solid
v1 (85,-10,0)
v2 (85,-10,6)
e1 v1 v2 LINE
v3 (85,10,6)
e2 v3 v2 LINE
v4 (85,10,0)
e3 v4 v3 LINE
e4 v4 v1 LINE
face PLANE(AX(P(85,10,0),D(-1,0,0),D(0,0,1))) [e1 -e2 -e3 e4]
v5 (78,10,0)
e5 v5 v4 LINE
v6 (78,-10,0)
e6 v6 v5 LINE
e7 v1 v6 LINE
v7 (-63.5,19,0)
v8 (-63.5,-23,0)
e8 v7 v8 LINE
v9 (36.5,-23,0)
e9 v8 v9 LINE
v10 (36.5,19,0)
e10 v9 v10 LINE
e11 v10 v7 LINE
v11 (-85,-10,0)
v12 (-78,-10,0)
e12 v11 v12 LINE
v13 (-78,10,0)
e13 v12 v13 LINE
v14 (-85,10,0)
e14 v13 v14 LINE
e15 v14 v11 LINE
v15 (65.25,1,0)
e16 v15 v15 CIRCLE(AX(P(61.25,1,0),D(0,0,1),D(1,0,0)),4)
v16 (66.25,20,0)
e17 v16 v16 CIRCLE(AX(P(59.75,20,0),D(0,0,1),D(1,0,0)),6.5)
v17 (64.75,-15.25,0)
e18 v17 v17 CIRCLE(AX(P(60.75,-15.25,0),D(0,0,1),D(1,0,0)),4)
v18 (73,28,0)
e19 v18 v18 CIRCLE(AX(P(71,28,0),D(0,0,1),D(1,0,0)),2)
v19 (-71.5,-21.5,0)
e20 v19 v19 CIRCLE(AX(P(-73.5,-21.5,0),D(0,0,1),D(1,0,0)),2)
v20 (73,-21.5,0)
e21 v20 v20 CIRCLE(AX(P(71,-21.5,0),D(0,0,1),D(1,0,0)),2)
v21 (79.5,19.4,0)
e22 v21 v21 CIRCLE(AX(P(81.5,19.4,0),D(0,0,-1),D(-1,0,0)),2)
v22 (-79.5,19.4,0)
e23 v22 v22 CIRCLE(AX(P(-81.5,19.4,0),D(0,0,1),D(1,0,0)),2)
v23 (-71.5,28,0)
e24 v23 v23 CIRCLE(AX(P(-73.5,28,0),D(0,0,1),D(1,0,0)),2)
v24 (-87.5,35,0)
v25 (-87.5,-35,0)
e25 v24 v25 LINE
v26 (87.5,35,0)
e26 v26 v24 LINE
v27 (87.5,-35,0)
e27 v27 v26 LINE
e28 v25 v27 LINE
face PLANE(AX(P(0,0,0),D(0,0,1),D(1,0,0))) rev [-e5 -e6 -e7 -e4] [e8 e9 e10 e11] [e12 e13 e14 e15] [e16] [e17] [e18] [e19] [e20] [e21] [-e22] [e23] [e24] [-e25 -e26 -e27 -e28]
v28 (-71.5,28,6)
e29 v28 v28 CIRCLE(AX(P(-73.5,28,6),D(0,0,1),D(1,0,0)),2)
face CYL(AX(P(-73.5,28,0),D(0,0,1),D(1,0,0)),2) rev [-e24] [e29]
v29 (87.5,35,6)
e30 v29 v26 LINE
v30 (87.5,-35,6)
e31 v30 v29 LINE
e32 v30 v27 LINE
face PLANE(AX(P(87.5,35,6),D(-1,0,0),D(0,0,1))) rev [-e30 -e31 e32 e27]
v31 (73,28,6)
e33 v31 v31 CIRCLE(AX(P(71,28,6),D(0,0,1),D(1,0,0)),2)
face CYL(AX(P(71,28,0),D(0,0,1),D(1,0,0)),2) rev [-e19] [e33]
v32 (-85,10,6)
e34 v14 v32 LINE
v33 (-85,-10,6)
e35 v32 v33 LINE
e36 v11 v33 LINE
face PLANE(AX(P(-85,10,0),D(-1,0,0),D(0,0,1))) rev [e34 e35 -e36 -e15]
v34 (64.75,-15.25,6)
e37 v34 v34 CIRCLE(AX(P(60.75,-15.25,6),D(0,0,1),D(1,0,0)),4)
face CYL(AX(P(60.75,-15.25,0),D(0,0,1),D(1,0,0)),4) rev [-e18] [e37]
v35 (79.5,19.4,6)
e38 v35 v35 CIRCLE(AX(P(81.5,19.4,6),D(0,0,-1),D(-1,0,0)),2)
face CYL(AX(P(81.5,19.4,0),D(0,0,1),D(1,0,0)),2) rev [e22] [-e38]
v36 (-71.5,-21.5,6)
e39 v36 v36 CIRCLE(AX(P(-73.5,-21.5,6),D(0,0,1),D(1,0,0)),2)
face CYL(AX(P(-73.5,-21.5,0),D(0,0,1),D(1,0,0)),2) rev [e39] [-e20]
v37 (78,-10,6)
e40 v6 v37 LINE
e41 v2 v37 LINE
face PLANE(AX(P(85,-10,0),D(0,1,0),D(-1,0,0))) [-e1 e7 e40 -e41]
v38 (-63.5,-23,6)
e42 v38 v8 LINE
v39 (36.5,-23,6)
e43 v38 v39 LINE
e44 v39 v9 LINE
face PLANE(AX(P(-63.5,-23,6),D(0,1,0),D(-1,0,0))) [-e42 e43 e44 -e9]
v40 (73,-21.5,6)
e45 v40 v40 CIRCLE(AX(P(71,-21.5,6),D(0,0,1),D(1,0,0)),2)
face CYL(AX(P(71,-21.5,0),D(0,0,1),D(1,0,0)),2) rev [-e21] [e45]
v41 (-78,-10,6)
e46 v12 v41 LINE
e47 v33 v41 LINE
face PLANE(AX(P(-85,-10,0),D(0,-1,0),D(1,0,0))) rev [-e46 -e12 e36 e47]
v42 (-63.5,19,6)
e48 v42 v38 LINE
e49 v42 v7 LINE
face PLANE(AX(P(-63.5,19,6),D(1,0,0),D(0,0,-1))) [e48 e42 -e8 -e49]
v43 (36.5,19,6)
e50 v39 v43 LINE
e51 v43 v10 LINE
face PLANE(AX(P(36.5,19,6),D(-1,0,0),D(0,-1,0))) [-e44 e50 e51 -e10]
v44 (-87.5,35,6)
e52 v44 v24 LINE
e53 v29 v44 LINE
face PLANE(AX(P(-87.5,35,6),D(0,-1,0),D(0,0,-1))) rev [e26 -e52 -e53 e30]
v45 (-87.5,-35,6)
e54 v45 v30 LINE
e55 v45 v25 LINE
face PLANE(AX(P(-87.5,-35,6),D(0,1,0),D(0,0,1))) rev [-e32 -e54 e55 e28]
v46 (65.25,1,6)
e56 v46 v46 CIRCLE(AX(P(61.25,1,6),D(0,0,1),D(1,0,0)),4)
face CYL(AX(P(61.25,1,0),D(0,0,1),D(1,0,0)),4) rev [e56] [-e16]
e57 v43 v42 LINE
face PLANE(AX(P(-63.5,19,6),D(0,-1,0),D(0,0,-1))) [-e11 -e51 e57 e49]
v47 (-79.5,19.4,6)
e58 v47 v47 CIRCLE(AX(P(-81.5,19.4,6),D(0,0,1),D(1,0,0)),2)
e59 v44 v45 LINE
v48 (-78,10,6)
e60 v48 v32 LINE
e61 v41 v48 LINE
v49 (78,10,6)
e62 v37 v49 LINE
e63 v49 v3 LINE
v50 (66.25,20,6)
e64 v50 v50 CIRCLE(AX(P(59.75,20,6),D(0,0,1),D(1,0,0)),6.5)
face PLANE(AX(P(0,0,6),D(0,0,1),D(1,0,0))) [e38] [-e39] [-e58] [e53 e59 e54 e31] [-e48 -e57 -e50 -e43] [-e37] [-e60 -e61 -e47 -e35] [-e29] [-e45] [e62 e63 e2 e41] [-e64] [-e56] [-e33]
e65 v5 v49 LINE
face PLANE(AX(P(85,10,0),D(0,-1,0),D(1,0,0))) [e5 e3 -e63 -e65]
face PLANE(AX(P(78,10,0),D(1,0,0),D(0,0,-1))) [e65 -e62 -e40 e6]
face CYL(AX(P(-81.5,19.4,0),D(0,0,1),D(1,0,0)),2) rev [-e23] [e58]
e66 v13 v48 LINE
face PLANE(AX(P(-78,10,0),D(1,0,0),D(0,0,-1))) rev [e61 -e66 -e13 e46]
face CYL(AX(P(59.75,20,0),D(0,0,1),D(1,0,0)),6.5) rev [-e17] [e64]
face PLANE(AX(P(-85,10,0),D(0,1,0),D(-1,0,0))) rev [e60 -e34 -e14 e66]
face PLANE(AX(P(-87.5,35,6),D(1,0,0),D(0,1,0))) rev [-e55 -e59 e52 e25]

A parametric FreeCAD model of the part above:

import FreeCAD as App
import Part
import Sketcher
from FreeCAD import Vector

doc = App.newDocument("Part")
body = doc.addObject("PartDesign::Body", "Body")

# Sketch on XY plane
sketch1 = body.newObject("Sketcher::SketchObject", "Sketch")
sketch1.AttachmentSupport = (doc.getObject("XY_Plane"), [""])
sketch1.MapMode = "FlatFace"
sketch1.addGeometry(Part.LineSegment(Vector(-88, 35, 0), Vector(-88, -35, 0)), False)
sketch1.addGeometry(Part.LineSegment(Vector(-88, -35, 0), Vector(88, -35, 0)), False)
sketch1.addGeometry(Part.LineSegment(Vector(88, -35, 0), Vector(88, 35, 0)), False)
sketch1.addGeometry(Part.LineSegment(Vector(88, 35, 0), Vector(-88, 35, 0)), False)
sketch1.addGeometry(Part.LineSegment(Vector(36, -23, 0), Vector(-64, -23, 0)), False)
sketch1.addGeometry(Part.LineSegment(Vector(-64, -23, 0), Vector(-64, 19, 0)), False)
sketch1.addGeometry(Part.LineSegment(Vector(-64, 19, 0), Vector(36, 19, 0)), False)
sketch1.addGeometry(Part.LineSegment(Vector(36, 19, 0), Vector(36, -23, 0)), False)
sketch1.addConstraint(Sketcher.Constraint("Coincident", 0, 2, 1, 1))
sketch1.addConstraint(Sketcher.Constraint("Coincident", 1, 2, 2, 1))
sketch1.addConstraint(Sketcher.Constraint("Coincident", 2, 2, 3, 1))
sketch1.addConstraint(Sketcher.Constraint("Coincident", 3, 2, 0, 1))
sketch1.addConstraint(Sketcher.Constraint("Coincident", 4, 2, 5, 1))
sketch1.addConstraint(Sketcher.Constraint("Coincident", 5, 2, 6, 1))
sketch1.addConstraint(Sketcher.Constraint("Coincident", 6, 2, 7, 1))
sketch1.addConstraint(Sketcher.Constraint("Coincident", 7, 2, 4, 1))
sketch1.addConstraint(Sketcher.Constraint("Vertical", 0))
sketch1.addConstraint(Sketcher.Constraint("Horizontal", 1))
sketch1.addConstraint(Sketcher.Constraint("Vertical", 2))
sketch1.addConstraint(Sketcher.Constraint("Horizontal", 3))
sketch1.addConstraint(Sketcher.Constraint("Horizontal", 4))
sketch1.addConstraint(Sketcher.Constraint("Vertical", 5))
sketch1.addConstraint(Sketcher.Constraint("Horizontal", 6))
sketch1.addConstraint(Sketcher.Constraint("Vertical", 7))
sketch1.addConstraint(Sketcher.Constraint("Symmetric", 0, 2, 2, 2, -1, 1))
sketch1.addConstraint(Sketcher.Constraint("DistanceX", 1, 1, 1, 2, 175.0))
sketch1.addConstraint(Sketcher.Constraint("DistanceX", 4, 2, 4, 1, 100.0))
sketch1.addConstraint(Sketcher.Constraint("DistanceY", 0, 2, 0, 1, 70.0))
sketch1.addConstraint(Sketcher.Constraint("DistanceY", 5, 1, 5, 2, 42.0))
sketch1.addConstraint(Sketcher.Constraint("DistanceY", 4, 2, -1, 1, 23.0))
sketch1.addConstraint(Sketcher.Constraint("DistanceX", 0, 2, 4, 2, 24.0))
pad1 = body.newObject("PartDesign::Pad", "Pad")
pad1.Profile = sketch1
pad1.Length = 6

# Sketch on XY plane
sketch2 = body.newObject("Sketcher::SketchObject", "Sketch001")
sketch2.AttachmentSupport = (doc.getObject("XY_Plane"), [""])
sketch2.MapMode = "FlatFace"
sketch2.AttachmentOffset = App.Placement(Vector(0, 0, 6), App.Rotation())
sketch2.addGeometry(Part.Circle(Vector(-81.5, 19.4, 0), Vector(0, 0, 1), 2), False)
sketch2.addGeometry(Part.LineSegment(Vector(-85, 10, 0), Vector(-85, -10, 0)), False)
sketch2.addGeometry(Part.LineSegment(Vector(-85, -10, 0), Vector(-78, -10, 0)), False)
sketch2.addGeometry(Part.LineSegment(Vector(-78, -10, 0), Vector(-78, 10, 0)), False)
sketch2.addGeometry(Part.LineSegment(Vector(-78, 10, 0), Vector(-85, 10, 0)), False)
sketch2.addConstraint(Sketcher.Constraint("Coincident", 1, 2, 2, 1))
sketch2.addConstraint(Sketcher.Constraint("Coincident", 2, 2, 3, 1))
sketch2.addConstraint(Sketcher.Constraint("Coincident", 3, 2, 4, 1))
sketch2.addConstraint(Sketcher.Constraint("Coincident", 4, 2, 1, 1))
sketch2.addConstraint(Sketcher.Constraint("Vertical", 1))
sketch2.addConstraint(Sketcher.Constraint("Horizontal", 2))
sketch2.addConstraint(Sketcher.Constraint("Vertical", 3))
sketch2.addConstraint(Sketcher.Constraint("Horizontal", 4))
sketch2.addConstraint(Sketcher.Constraint("Diameter", 0, 4.0))
sketch2.addConstraint(Sketcher.Constraint("DistanceX", 2, 1, 2, 2, 7.0))
sketch2.addConstraint(Sketcher.Constraint("DistanceY", 1, 2, 1, 1, 20.0))
sketch2.addConstraint(Sketcher.Constraint("DistanceX", 1, 2, -1, 1, 85.0))
sketch2.addConstraint(Sketcher.Constraint("DistanceY", 1, 2, -1, 1, 10.0))
sketch2.addConstraint(Sketcher.Constraint("DistanceX", 0, 3, -1, 1, 81.5))
sketch2.addConstraint(Sketcher.Constraint("DistanceY", -1, 1, 0, 3, 19.4))
pocket1 = body.newObject("PartDesign::Pocket", "Pocket")
pocket1.Profile = sketch2
pocket1.Length = 6
doc.recompute()

mirrored = body.newObject("PartDesign::Mirrored", "Mirrored")
mirrored.Originals = [pocket1]
mirrored.MirrorPlane = (doc.getObject("YZ_Plane"), [""])
body.Tip = mirrored

# Sketch on XY plane
sketch3 = body.newObject("Sketcher::SketchObject", "Sketch002")
sketch3.AttachmentSupport = (doc.getObject("XY_Plane"), [""])
sketch3.MapMode = "FlatFace"
sketch3.AttachmentOffset = App.Placement(Vector(0, 0, 6), App.Rotation())
sketch3.addGeometry(Part.Circle(Vector(-73.5, 28, 0), Vector(0, 0, 1), 2), False)
sketch3.addGeometry(Part.Circle(Vector(71, 28, 0), Vector(0, 0, 1), 2), False)
sketch3.addGeometry(Part.Circle(Vector(71, -21.5, 0), Vector(0, 0, 1), 2), False)
sketch3.addGeometry(Part.Circle(Vector(-73.5, -21.5, 0), Vector(0, 0, 1), 2), False)
sketch3.addGeometry(Part.Circle(Vector(59.8, 20, 0), Vector(0, 0, 1), 6.5), False)
sketch3.addGeometry(Part.Circle(Vector(61.2, 1, 0), Vector(0, 0, 1), 4), False)
sketch3.addGeometry(Part.Circle(Vector(60.8, -15.2, 0), Vector(0, 0, 1), 4), False)
sketch3.addConstraint(Sketcher.Constraint("Equal", 0, 1))
sketch3.addConstraint(Sketcher.Constraint("Equal", 1, 2))
sketch3.addConstraint(Sketcher.Constraint("Equal", 2, 3))
sketch3.addConstraint(Sketcher.Constraint("Equal", 5, 6))
sketch3.addConstraint(Sketcher.Constraint("Horizontal", 0, 3, 1, 3))
sketch3.addConstraint(Sketcher.Constraint("Horizontal", 2, 3, 3, 3))
sketch3.addConstraint(Sketcher.Constraint("Vertical", 1, 3, 2, 3))
sketch3.addConstraint(Sketcher.Constraint("Vertical", 0, 3, 3, 3))
sketch3.addConstraint(Sketcher.Constraint("Diameter", 0, 4.0))
sketch3.addConstraint(Sketcher.Constraint("Diameter", 4, 13.0))
sketch3.addConstraint(Sketcher.Constraint("Diameter", 5, 8.0))
sketch3.addConstraint(Sketcher.Constraint("DistanceY", -1, 1, 0, 3, 28.0))
sketch3.addConstraint(Sketcher.Constraint("DistanceX", -1, 1, 1, 3, 71.0))
sketch3.addConstraint(Sketcher.Constraint("DistanceY", -1, 1, 4, 3, 20.0))
sketch3.addConstraint(Sketcher.Constraint("DistanceY", -1, 1, 5, 3, 1.0))
sketch3.addConstraint(Sketcher.Constraint("DistanceX", 4, 3, 6, 3, 1.0))
sketch3.addConstraint(Sketcher.Constraint("DistanceX", 0, 3, -1, 1, 73.5))
sketch3.addConstraint(Sketcher.Constraint("DistanceY", 2, 3, -1, 1, 21.5))
sketch3.addConstraint(Sketcher.Constraint("DistanceX", 4, 3, 5, 3, 1.5))
sketch3.addConstraint(Sketcher.Constraint("DistanceX", -1, 1, 4, 3, 59.75))
sketch3.addConstraint(Sketcher.Constraint("DistanceY", 6, 3, -1, 1, 15.25))
pocket2 = body.newObject("PartDesign::Pocket", "Pocket001")
pocket2.Profile = sketch3
pocket2.Length = 6

doc.recompute()
